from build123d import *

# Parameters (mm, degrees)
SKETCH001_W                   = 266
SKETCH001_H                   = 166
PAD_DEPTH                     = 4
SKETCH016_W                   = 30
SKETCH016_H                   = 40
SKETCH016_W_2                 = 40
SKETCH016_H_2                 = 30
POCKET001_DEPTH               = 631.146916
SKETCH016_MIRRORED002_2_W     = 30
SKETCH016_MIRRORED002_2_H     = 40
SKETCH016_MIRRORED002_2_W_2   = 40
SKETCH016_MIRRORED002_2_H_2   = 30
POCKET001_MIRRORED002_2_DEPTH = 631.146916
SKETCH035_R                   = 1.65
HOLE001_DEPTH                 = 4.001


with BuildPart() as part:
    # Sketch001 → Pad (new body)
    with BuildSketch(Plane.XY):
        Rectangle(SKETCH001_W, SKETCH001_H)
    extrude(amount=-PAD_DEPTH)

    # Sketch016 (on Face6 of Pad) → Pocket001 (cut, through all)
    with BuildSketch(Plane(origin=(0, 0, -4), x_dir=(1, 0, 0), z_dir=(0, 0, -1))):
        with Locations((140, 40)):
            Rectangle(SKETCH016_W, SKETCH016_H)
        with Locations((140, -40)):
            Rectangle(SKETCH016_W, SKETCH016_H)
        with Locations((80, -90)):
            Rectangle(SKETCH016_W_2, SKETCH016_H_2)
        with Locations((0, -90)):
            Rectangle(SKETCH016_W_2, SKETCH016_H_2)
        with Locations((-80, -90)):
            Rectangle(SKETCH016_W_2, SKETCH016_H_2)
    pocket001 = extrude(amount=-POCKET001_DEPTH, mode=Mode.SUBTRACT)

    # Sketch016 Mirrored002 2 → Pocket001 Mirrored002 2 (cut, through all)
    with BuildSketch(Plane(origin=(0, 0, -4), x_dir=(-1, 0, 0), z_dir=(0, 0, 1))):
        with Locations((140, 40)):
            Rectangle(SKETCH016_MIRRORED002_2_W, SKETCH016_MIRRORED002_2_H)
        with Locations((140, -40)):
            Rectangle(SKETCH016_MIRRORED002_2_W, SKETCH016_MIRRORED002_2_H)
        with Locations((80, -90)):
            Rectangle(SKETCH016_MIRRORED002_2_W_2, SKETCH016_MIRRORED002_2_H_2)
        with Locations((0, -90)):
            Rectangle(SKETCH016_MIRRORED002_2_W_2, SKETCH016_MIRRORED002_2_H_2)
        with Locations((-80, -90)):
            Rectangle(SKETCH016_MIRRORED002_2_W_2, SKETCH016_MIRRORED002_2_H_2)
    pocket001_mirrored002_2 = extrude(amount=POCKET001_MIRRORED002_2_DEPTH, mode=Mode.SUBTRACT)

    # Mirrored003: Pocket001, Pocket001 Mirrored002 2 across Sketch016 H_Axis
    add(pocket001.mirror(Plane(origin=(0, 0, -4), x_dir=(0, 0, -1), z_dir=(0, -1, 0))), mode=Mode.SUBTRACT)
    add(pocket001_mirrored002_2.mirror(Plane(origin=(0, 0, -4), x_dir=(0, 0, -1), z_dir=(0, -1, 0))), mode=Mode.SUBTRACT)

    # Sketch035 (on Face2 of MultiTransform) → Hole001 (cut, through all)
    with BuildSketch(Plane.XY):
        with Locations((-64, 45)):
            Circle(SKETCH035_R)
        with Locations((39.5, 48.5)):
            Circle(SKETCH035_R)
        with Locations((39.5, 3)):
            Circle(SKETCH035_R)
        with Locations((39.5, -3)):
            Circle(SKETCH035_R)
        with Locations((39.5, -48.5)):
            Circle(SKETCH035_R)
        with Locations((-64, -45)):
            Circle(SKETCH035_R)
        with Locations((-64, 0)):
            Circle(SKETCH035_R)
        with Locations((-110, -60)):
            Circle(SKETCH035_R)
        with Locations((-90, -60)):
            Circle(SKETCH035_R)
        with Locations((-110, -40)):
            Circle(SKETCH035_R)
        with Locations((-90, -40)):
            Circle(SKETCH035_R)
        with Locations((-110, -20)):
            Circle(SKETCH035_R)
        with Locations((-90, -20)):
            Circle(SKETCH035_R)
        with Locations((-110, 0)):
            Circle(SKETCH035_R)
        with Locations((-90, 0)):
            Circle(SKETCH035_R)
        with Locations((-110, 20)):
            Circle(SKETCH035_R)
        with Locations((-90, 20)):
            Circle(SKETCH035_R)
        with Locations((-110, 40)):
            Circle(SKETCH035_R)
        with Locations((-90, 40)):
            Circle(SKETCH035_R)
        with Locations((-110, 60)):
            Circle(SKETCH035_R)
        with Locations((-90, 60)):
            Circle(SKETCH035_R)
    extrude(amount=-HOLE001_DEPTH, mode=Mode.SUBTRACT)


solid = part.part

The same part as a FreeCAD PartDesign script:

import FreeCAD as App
import Part
import Sketcher
from FreeCAD import Vector
Q = App.Units.Quantity


def add_polygon(sketch, points):
    """Adds a closed chain of lines whose ends are joined by coincident constraints."""
    first, n = sketch.GeometryCount, len(points)
    for a, b in zip(points, points[1:] + points[:1]):
        sketch.addGeometry(Part.LineSegment(App.Vector(*a, 0), App.Vector(*b, 0)), False)
    for i in range(n):
        sketch.addConstraint(Sketcher.Constraint("Coincident", first + i, 2, first + (i + 1) % n, 1))

doc = App.newDocument("Part")
body = doc.addObject("PartDesign::Body", "Body")

# Sketch on XY plane
sketch1 = body.newObject("Sketcher::SketchObject", "Sketch")
sketch1.AttachmentSupport = (doc.getObject("XY_Plane"), [""])
sketch1.MapMode = "FlatFace"
add_polygon(sketch1, [(-133, 83), (-133, -83), (133, -83), (133, 83)])  # lines 0-3
sketch1.addConstraint([
    Sketcher.Constraint("Vertical", 0),
    Sketcher.Constraint("Horizontal", 1),
    Sketcher.Constraint("Vertical", 2),
    Sketcher.Constraint("Horizontal", 3),
    Sketcher.Constraint("Symmetric", 0, 2, 2, 2, -1, 1),
    Sketcher.Constraint("DistanceX", 1, 1, 1, 2, Q("266 mm")),
    Sketcher.Constraint("DistanceY", 0, 2, 0, 1, Q("166 mm")),
])
pad1 = body.newObject("PartDesign::Pad", "Pad")
pad1.Profile = sketch1
pad1.Length = 4
pad1.Reversed = True

# Sketch on XY plane
sketch2 = body.newObject("Sketcher::SketchObject", "Sketch001")
sketch2.AttachmentSupport = (doc.getObject("XY_Plane"), [""])
sketch2.MapMode = "FlatFace"
sketch2.AttachmentOffset = App.Placement(Vector(0, 0, -4), App.Rotation())
add_polygon(sketch2, [(125, -60), (125, -20), (155, -20), (155, -60)])  # lines 0-3
add_polygon(sketch2, [(125, 20), (125, 60), (155, 60), (155, 20)])  # lines 4-7
add_polygon(sketch2, [(60, 75), (60, 105), (100, 105), (100, 75)])  # lines 8-11
add_polygon(sketch2, [(-20, 75), (-20, 105), (20, 105), (20, 75)])  # lines 12-15
add_polygon(sketch2, [(-100, 75), (-100, 105), (-60, 105), (-60, 75)])  # lines 16-19
sketch2.addConstraint([
    Sketcher.Constraint("Vertical", 0),
    Sketcher.Constraint("Horizontal", 1),
    Sketcher.Constraint("Vertical", 2),
    Sketcher.Constraint("Horizontal", 3),
    Sketcher.Constraint("Vertical", 4),
    Sketcher.Constraint("Horizontal", 5),
    Sketcher.Constraint("Vertical", 6),
    Sketcher.Constraint("Horizontal", 7),
    Sketcher.Constraint("Vertical", 8),
    Sketcher.Constraint("Horizontal", 9),
    Sketcher.Constraint("Vertical", 10),
    Sketcher.Constraint("Horizontal", 11),
    Sketcher.Constraint("Vertical", 12),
    Sketcher.Constraint("Horizontal", 13),
    Sketcher.Constraint("Vertical", 14),
    Sketcher.Constraint("Horizontal", 15),
    Sketcher.Constraint("Vertical", 16),
    Sketcher.Constraint("Horizontal", 17),
    Sketcher.Constraint("Vertical", 18),
    Sketcher.Constraint("Horizontal", 19),
    Sketcher.Constraint("Symmetric", 9, 2, 16, 2, -2),
    Sketcher.Constraint("Symmetric", 11, 2, 18, 2, -2),
    Sketcher.Constraint("Symmetric", 3, 2, 4, 2, -1),
    Sketcher.Constraint("Symmetric", 1, 2, 6, 2, -1),
    Sketcher.Constraint("Horizontal", 9, 2, 12, 2),
    Sketcher.Constraint("Horizontal", 11, 2, 14, 2),
    Sketcher.Constraint("Equal", 11, 13),
    Sketcher.Constraint("Equal", 19, 0),
    Sketcher.Constraint("Equal", 7, 8),
    Sketcher.Constraint("DistanceX", 1, 1, 1, 2, Q("30 mm")),
    Sketcher.Constraint("DistanceX", 9, 1, 9, 2, Q("40 mm")),
    Sketcher.Constraint("DistanceX", -1, 1, 0, 2, Q("125 mm")),
    Sketcher.Constraint("DistanceY", 0, 2, -1, 1, Q("20 mm")),
    Sketcher.Constraint("DistanceX", -1, 1, 8, 2, Q("60 mm")),
    Sketcher.Constraint("DistanceY", -1, 1, 8, 2, Q("105 mm")),
    Sketcher.Constraint("DistanceX", 12, 2, -1, 1, Q("20 mm")),
])
pocket1 = body.newObject("PartDesign::Pocket", "Pocket")
pocket1.Profile = sketch2
pocket1.Type = "ThroughAll"
pocket1.Reversed = True

# Sketch on XY plane
sketch3 = body.newObject("Sketcher::SketchObject", "Sketch002")
sketch3.AttachmentSupport = (doc.getObject("XY_Plane"), [""])
sketch3.MapMode = "FlatFace"
sketch3.AttachmentOffset = App.Placement(Vector(0, 0, -4), App.Rotation())
add_polygon(sketch3, [(-125, -60), (-125, -20), (-155, -20), (-155, -60)])  # lines 0-3
add_polygon(sketch3, [(-125, 20), (-125, 60), (-155, 60), (-155, 20)])  # lines 4-7
add_polygon(sketch3, [(-60, 75), (-60, 105), (-100, 105), (-100, 75)])  # lines 8-11
add_polygon(sketch3, [(20, 75), (20, 105), (-20, 105), (-20, 75)])  # lines 12-15
add_polygon(sketch3, [(100, 75), (100, 105), (60, 105), (60, 75)])  # lines 16-19
sketch3.addConstraint([
    Sketcher.Constraint("Vertical", 0),
    Sketcher.Constraint("Horizontal", 1),
    Sketcher.Constraint("Vertical", 2),
    Sketcher.Constraint("Horizontal", 3),
    Sketcher.Constraint("Vertical", 4),
    Sketcher.Constraint("Horizontal", 5),
    Sketcher.Constraint("Vertical", 6),
    Sketcher.Constraint("Horizontal", 7),
    Sketcher.Constraint("Vertical", 8),
    Sketcher.Constraint("Horizontal", 9),
    Sketcher.Constraint("Vertical", 10),
    Sketcher.Constraint("Horizontal", 11),
    Sketcher.Constraint("Vertical", 12),
    Sketcher.Constraint("Horizontal", 13),
    Sketcher.Constraint("Vertical", 14),
    Sketcher.Constraint("Horizontal", 15),
    Sketcher.Constraint("Vertical", 16),
    Sketcher.Constraint("Horizontal", 17),
    Sketcher.Constraint("Vertical", 18),
    Sketcher.Constraint("Horizontal", 19),
    Sketcher.Constraint("Symmetric", 9, 2, 16, 2, -2),
    Sketcher.Constraint("Symmetric", 11, 2, 18, 2, -2),
    Sketcher.Constraint("Symmetric", 3, 2, 4, 2, -1),
    Sketcher.Constraint("Symmetric", 1, 2, 6, 2, -1),
    Sketcher.Constraint("Horizontal", 9, 2, 12, 2),
    Sketcher.Constraint("Horizontal", 11, 2, 14, 2),
    Sketcher.Constraint("Equal", 11, 13),
    Sketcher.Constraint("Equal", 19, 0),
    Sketcher.Constraint("Equal", 7, 8),
    Sketcher.Constraint("DistanceX", 1, 2, 1, 1, Q("30 mm")),
    Sketcher.Constraint("DistanceX", 9, 2, 9, 1, Q("40 mm")),
    Sketcher.Constraint("DistanceX", 0, 2, -1, 1, Q("125 mm")),
    Sketcher.Constraint("DistanceY", 0, 2, -1, 1, Q("20 mm")),
    Sketcher.Constraint("DistanceX", 8, 2, -1, 1, Q("60 mm")),
    Sketcher.Constraint("DistanceY", -1, 1, 8, 2, Q("105 mm")),
    Sketcher.Constraint("DistanceX", -1, 1, 12, 2, Q("20 mm")),
])
pocket2 = body.newObject("PartDesign::Pocket", "Pocket001")
pocket2.Profile = sketch3
pocket2.Type = "ThroughAll"
pocket2.Reversed = True
doc.recompute()

mirrored = body.newObject("PartDesign::Mirrored", "Mirrored")
mirrored.Originals = [pocket1, pocket2]
mirrored.MirrorPlane = (doc.getObject("XZ_Plane"), [""])
body.Tip = mirrored

# Sketch on XY plane
sketch4 = body.newObject("Sketcher::SketchObject", "Sketch003")
sketch4.AttachmentSupport = (doc.getObject("XY_Plane"), [""])
sketch4.MapMode = "FlatFace"
sketch4.addGeometry([
    Part.Circle(Vector(-64, 45, 0), Vector(0, 0, 1), 1.65),  # 0
    Part.Circle(Vector(39.5, 48.5, 0), Vector(0, 0, 1), 1.65),  # 1
    Part.Circle(Vector(39.5, 3, 0), Vector(0, 0, 1), 1.65),  # 2
    Part.Circle(Vector(39.5, -3, 0), Vector(0, 0, 1), 1.65),  # 3
    Part.Circle(Vector(39.5, -48.5, 0), Vector(0, 0, 1), 1.65),  # 4
    Part.Circle(Vector(-64, -45, 0), Vector(0, 0, 1), 1.65),  # 5
    Part.Circle(Vector(-64, 0, 0), Vector(0, 0, 1), 1.65),  # 6
    Part.Circle(Vector(-110, -60, 0), Vector(0, 0, 1), 1.65),  # 7
    Part.Circle(Vector(-90, -60, 0), Vector(0, 0, 1), 1.65),  # 8
    Part.Circle(Vector(-110, -40, 0), Vector(0, 0, 1), 1.65),  # 9
    Part.Circle(Vector(-90, -40, 0), Vector(0, 0, 1), 1.65),  # 10
    Part.Circle(Vector(-110, -20, 0), Vector(0, 0, 1), 1.65),  # 11
    Part.Circle(Vector(-90, -20, 0), Vector(0, 0, 1), 1.65),  # 12
    Part.Circle(Vector(-110, 0, 0), Vector(0, 0, 1), 1.65),  # 13
    Part.Circle(Vector(-90, 0, 0), Vector(0, 0, 1), 1.65),  # 14
    Part.Circle(Vector(-110, 20, 0), Vector(0, 0, 1), 1.65),  # 15
    Part.Circle(Vector(-90, 20, 0), Vector(0, 0, 1), 1.65),  # 16
    Part.Circle(Vector(-110, 40, 0), Vector(0, 0, 1), 1.65),  # 17
    Part.Circle(Vector(-90, 40, 0), Vector(0, 0, 1), 1.65),  # 18
    Part.Circle(Vector(-110, 60, 0), Vector(0, 0, 1), 1.65),  # 19
    Part.Circle(Vector(-90, 60, 0), Vector(0, 0, 1), 1.65),  # 20
], False)
sketch4.addConstraint([
    Sketcher.Constraint("Equal", 0, 1),
    Sketcher.Constraint("Equal", 1, 2),
    Sketcher.Constraint("Equal", 2, 3),
    Sketcher.Constraint("Equal", 3, 4),
    Sketcher.Constraint("Equal", 4, 5),
    Sketcher.Constraint("Equal", 5, 6),
    Sketcher.Constraint("Equal", 6, 7),
    Sketcher.Constraint("Equal", 7, 8),
    Sketcher.Constraint("Equal", 8, 9),
    Sketcher.Constraint("Equal", 9, 10),
    Sketcher.Constraint("Equal", 10, 11),
    Sketcher.Constraint("Equal", 11, 12),
    Sketcher.Constraint("Equal", 12, 13),
    Sketcher.Constraint("Equal", 13, 14),
    Sketcher.Constraint("Equal", 14, 15),
    Sketcher.Constraint("Equal", 15, 16),
    Sketcher.Constraint("Equal", 16, 17),
    Sketcher.Constraint("Equal", 17, 18),
    Sketcher.Constraint("Equal", 18, 19),
    Sketcher.Constraint("Equal", 19, 20),
    Sketcher.Constraint("Symmetric", 2, 3, 3, 3, -1),
    Sketcher.Constraint("Symmetric", 1, 3, 4, 3, -1),
    Sketcher.Constraint("Symmetric", 0, 3, 5, 3, -1),
    Sketcher.Constraint("Symmetric", 11, 3, 15, 3, -1),
    Sketcher.Constraint("Symmetric", 12, 3, 16, 3, -1),
    Sketcher.Constraint("Symmetric", 9, 3, 17, 3, -1),
    Sketcher.Constraint("Symmetric", 10, 3, 18, 3, -1),
    Sketcher.Constraint("Symmetric", 7, 3, 19, 3, -1),
    Sketcher.Constraint("Symmetric", 8, 3, 20, 3, -1),
    Sketcher.Constraint("PointOnObject", 6, 3, -1),
    Sketcher.Constraint("PointOnObject", 13, 3, -1),
    Sketcher.Constraint("PointOnObject", 14, 3, -1),
    Sketcher.Constraint("Horizontal", 7, 3, 8, 3),
    Sketcher.Constraint("Horizontal", 9, 3, 10, 3),
    Sketcher.Constraint("Horizontal", 11, 3, 12, 3),
    Sketcher.Constraint("Vertical", 1, 3, 2, 3),
    Sketcher.Constraint("Vertical", 5, 3, 6, 3),
    Sketcher.Constraint("Vertical", 7, 3, 9, 3),
    Sketcher.Constraint("Vertical", 8, 3, 10, 3),
    Sketcher.Constraint("Vertical", 9, 3, 11, 3),
    Sketcher.Constraint("Vertical", 10, 3, 12, 3),
    Sketcher.Constraint("Vertical", 11, 3, 13, 3),
    Sketcher.Constraint("Vertical", 12, 3, 14, 3),
    Sketcher.Constraint("Diameter", 0, Q("3.3 mm")),
    Sketcher.Constraint("DistanceX", 0, 3, -1, 1, Q("64 mm")),
    Sketcher.Constraint("DistanceY", -1, 1, 0, 3, Q("45 mm")),
    Sketcher.Constraint("DistanceY", -1, 1, 2, 3, Q("3 mm")),
    Sketcher.Constraint("DistanceX", 7, 3, -1, 1, Q("110 mm")),
    Sketcher.Constraint("DistanceY", 7, 3, -1, 1, Q("60 mm")),
    Sketcher.Constraint("DistanceX", 8, 3, -1, 1, Q("90 mm")),
    Sketcher.Constraint("DistanceY", 9, 3, -1, 1, Q("40 mm")),
    Sketcher.Constraint("DistanceY", 11, 3, -1, 1, Q("20 mm")),
    Sketcher.Constraint("DistanceY", 4, 3, 1, 3, Q("97 mm")),
    Sketcher.Constraint("DistanceX", -1, 1, 1, 3, Q("39.5 mm")),
])
pocket3 = body.newObject("PartDesign::Pocket", "Pocket002")
pocket3.Profile = sketch4
pocket3.Type = "ThroughAll"

doc.recompute()
